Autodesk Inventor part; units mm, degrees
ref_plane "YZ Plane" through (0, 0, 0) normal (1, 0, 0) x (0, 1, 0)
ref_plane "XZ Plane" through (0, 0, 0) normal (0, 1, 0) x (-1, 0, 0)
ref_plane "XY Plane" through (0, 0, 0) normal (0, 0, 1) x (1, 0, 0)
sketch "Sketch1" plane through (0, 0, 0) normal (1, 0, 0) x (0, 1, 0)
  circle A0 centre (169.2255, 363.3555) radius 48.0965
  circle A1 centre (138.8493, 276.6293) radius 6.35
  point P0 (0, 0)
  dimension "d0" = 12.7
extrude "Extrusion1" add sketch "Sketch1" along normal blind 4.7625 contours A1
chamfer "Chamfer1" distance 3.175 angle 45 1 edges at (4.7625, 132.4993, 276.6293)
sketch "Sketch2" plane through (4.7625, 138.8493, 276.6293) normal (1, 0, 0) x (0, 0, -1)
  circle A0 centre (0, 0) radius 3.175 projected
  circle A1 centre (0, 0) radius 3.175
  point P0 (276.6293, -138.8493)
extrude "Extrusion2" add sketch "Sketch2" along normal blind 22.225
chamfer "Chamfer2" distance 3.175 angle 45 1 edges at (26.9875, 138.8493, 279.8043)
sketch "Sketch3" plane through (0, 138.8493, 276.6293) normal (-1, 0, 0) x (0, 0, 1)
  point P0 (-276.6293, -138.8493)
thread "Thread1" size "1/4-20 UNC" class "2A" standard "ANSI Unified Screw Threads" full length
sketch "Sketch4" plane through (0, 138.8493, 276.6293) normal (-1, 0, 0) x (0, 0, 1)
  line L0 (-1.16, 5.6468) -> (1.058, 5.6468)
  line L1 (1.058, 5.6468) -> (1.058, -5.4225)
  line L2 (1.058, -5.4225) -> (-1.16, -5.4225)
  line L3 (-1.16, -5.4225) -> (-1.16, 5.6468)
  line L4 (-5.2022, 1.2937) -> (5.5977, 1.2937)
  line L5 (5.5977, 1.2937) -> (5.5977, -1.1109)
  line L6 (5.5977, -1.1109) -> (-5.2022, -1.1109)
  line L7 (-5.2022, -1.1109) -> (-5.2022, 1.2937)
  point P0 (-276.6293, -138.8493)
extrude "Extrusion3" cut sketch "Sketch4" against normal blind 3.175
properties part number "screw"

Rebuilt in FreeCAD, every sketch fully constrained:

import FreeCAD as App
import Part
import Sketcher
Q = App.Units.Quantity


def edges_at(feature, points):
    """Names of the edges that pass closest to the given points."""
    edges = feature.Shape.Edges
    near = lambda p: min(range(len(edges)), key=lambda i: edges[i].distToShape(Part.Vertex(*p))[0])
    return sorted({f"Edge{near(p) + 1}" for p in points})

doc = App.newDocument("Part")
body = doc.addObject("PartDesign::Body", "Body")

sketch1 = doc.addObject("Sketcher::SketchObject", "Sketch")
body.addObject(sketch1)
sketch1.AttachmentSupport = (doc.YZ_Plane, [""])
sketch1.MapMode = "FlatFace"
sketch1.addGeometry(Part.Circle(App.Vector(138.8493, 276.6293, 0), App.Vector(0, 0, 1), 6.35), False)
sketch1.addConstraint(Sketcher.Constraint("Diameter", 0, Q("0.5 in")))
sketch1.addConstraint(Sketcher.Constraint("DistanceX", -1, 1, 0, 3, Q("5.4665 in")))
sketch1.addConstraint(Sketcher.Constraint("DistanceY", -1, 1, 0, 3, 276.6293))
pad1 = doc.addObject("PartDesign::Pad", "Pad")
body.addObject(pad1)
pad1.Profile = sketch1
pad1.Length = Q("0.1875 in")
doc.recompute()

chamfer = doc.addObject("PartDesign::Chamfer", "Chamfer")
body.addObject(chamfer)
chamfer.Base = (pad1, edges_at(pad1, [(4.763, 132.499, 276.629)]))
chamfer.Size = Q("0.125 in")

sketch2 = doc.addObject("Sketcher::SketchObject", "Sketch001")
body.addObject(sketch2)
sketch2.AttachmentSupport = (doc.YZ_Plane, [""])
sketch2.MapMode = "FlatFace"
sketch2.AttachmentOffset = App.Placement(App.Vector(0, 0, 0.1875 * 25.4), App.Rotation())
sketch2.addGeometry(Part.Circle(App.Vector(138.8493, 276.6293, 0), App.Vector(0, 0, 1), 3.175), False)
sketch2.addConstraint(Sketcher.Constraint("Diameter", 0, Q("0.25 in")))
sketch2.addConstraint(Sketcher.Constraint("DistanceX", -1, 1, 0, 3, Q("5.4665 in")))
sketch2.addConstraint(Sketcher.Constraint("DistanceY", -1, 1, 0, 3, 276.6293))
pad2 = doc.addObject("PartDesign::Pad", "Pad001")
body.addObject(pad2)
pad2.Profile = sketch2
pad2.Length = Q("0.875 in")
doc.recompute()

chamfer2 = doc.addObject("PartDesign::Chamfer", "Chamfer001")
body.addObject(chamfer2)
chamfer2.Base = (pad2, edges_at(pad2, [(26.988, 138.849, 279.804)]))
chamfer2.Size = Q("0.125 in")

sketch3 = doc.addObject("Sketcher::SketchObject", "Sketch002")
body.addObject(sketch3)
sketch3.AttachmentSupport = (doc.YZ_Plane, [""])
sketch3.MapMode = "FlatFace"
sketch3.addGeometry(Part.LineSegment(App.Vector(144.4961, 277.6873, 0), App.Vector(144.4961, 275.4693, 0)), False)
sketch3.addGeometry(Part.LineSegment(App.Vector(144.4961, 275.4693, 0), App.Vector(140.143, 275.4693, 0)), False)
sketch3.addGeometry(Part.LineSegment(App.Vector(140.143, 275.4693, 0), App.Vector(140.143, 271.4271, 0)), False)
sketch3.addGeometry(Part.LineSegment(App.Vector(140.143, 271.4271, 0), App.Vector(137.7384, 271.4271, 0)), False)
sketch3.addGeometry(Part.LineSegment(App.Vector(137.7384, 271.4271, 0), App.Vector(137.7384, 275.4693, 0)), False)
sketch3.addGeometry(Part.LineSegment(App.Vector(137.7384, 275.4693, 0), App.Vector(133.4268, 275.4693, 0)), False)
sketch3.addGeometry(Part.LineSegment(App.Vector(133.4268, 275.4693, 0), App.Vector(133.4268, 277.6873, 0)), False)
sketch3.addGeometry(Part.LineSegment(App.Vector(133.4268, 277.6873, 0), App.Vector(137.7384, 277.6873, 0)), False)
sketch3.addGeometry(Part.LineSegment(App.Vector(137.7384, 277.6873, 0), App.Vector(137.7384, 282.227, 0)), False)
sketch3.addGeometry(Part.LineSegment(App.Vector(137.7384, 282.227, 0), App.Vector(140.143, 282.227, 0)), False)
sketch3.addGeometry(Part.LineSegment(App.Vector(140.143, 282.227, 0), App.Vector(140.143, 277.6873, 0)), False)
sketch3.addGeometry(Part.LineSegment(App.Vector(140.143, 277.6873, 0), App.Vector(144.4961, 277.6873, 0)), False)
sketch3.addConstraint(Sketcher.Constraint("Coincident", 0, 2, 1, 1))
sketch3.addConstraint(Sketcher.Constraint("Coincident", 1, 2, 2, 1))
sketch3.addConstraint(Sketcher.Constraint("Coincident", 2, 2, 3, 1))
sketch3.addConstraint(Sketcher.Constraint("Coincident", 3, 2, 4, 1))
sketch3.addConstraint(Sketcher.Constraint("Coincident", 4, 2, 5, 1))
sketch3.addConstraint(Sketcher.Constraint("Coincident", 5, 2, 6, 1))
sketch3.addConstraint(Sketcher.Constraint("Coincident", 6, 2, 7, 1))
sketch3.addConstraint(Sketcher.Constraint("Coincident", 7, 2, 8, 1))
sketch3.addConstraint(Sketcher.Constraint("Coincident", 8, 2, 9, 1))
sketch3.addConstraint(Sketcher.Constraint("Coincident", 9, 2, 10, 1))
sketch3.addConstraint(Sketcher.Constraint("Coincident", 10, 2, 11, 1))
sketch3.addConstraint(Sketcher.Constraint("Coincident", 11, 2, 0, 1))
sketch3.addConstraint(Sketcher.Constraint("Vertical", 0))
sketch3.addConstraint(Sketcher.Constraint("Horizontal", 1))
sketch3.addConstraint(Sketcher.Constraint("Vertical", 2))
sketch3.addConstraint(Sketcher.Constraint("Horizontal", 3))
sketch3.addConstraint(Sketcher.Constraint("Vertical", 4))
sketch3.addConstraint(Sketcher.Constraint("Horizontal", 5))
sketch3.addConstraint(Sketcher.Constraint("Vertical", 6))
sketch3.addConstraint(Sketcher.Constraint("Horizontal", 7))
sketch3.addConstraint(Sketcher.Constraint("Vertical", 8))
sketch3.addConstraint(Sketcher.Constraint("Horizontal", 9))
sketch3.addConstraint(Sketcher.Constraint("Vertical", 10))
sketch3.addConstraint(Sketcher.Constraint("Horizontal", 11))
sketch3.addConstraint(Sketcher.Constraint("Horizontal", 1, 2, 4, 2))
sketch3.addConstraint(Sketcher.Constraint("Horizontal", 7, 2, 10, 2))
sketch3.addConstraint(Sketcher.Constraint("Vertical", 4, 2, 7, 2))
sketch3.addConstraint(Sketcher.Constraint("Vertical", 2, 2, 9, 2))
sketch3.addConstraint(Sketcher.Constraint("DistanceX", 1, 2, 1, 1, 4.353))
sketch3.addConstraint(Sketcher.Constraint("DistanceX", 3, 2, 3, 1, 2.4046))
sketch3.addConstraint(Sketcher.Constraint("DistanceX", 5, 2, 5, 1, 4.3116))
sketch3.addConstraint(Sketcher.Constraint("DistanceY", 0, 2, 0, 1, 2.218))
sketch3.addConstraint(Sketcher.Constraint("DistanceY", 2, 2, 2, 1, 4.0422))
sketch3.addConstraint(Sketcher.Constraint("DistanceY", 8, 1, 8, 2, 4.5397))
sketch3.addConstraint(Sketcher.Constraint("DistanceY", -1, 1, 2, 2, Q("10.6861 in")))
sketch3.addConstraint(Sketcher.Constraint("DistanceX", -1, 1, 0, 2, 144.496))
pocket1 = doc.addObject("PartDesign::Pocket", "Pocket")
body.addObject(pocket1)
pocket1.Profile = sketch3
pocket1.Length = Q("0.125 in")
pocket1.Reversed = True

doc.recompute()
